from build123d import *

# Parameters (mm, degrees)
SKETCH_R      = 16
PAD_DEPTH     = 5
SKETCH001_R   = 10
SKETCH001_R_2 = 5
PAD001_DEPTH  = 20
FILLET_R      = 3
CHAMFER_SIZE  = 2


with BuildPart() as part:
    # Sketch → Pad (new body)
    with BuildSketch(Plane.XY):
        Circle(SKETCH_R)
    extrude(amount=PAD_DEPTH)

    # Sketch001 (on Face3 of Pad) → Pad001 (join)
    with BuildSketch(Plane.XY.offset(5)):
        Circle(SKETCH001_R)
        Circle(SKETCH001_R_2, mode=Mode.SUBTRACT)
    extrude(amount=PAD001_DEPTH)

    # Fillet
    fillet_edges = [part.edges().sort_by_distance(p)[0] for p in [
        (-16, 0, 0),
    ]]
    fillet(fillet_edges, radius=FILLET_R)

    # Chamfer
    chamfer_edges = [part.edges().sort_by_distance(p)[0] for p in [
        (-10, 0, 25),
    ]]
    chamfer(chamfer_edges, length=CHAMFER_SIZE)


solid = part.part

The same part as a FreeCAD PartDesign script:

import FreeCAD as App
import Part
import Sketcher


def edges_at(feature, points):
    """Names of the edges that pass closest to the given points."""
    edges = feature.Shape.Edges
    near = lambda p: min(range(len(edges)), key=lambda i: edges[i].distToShape(Part.Vertex(*p))[0])
    return sorted({f"Edge{near(p) + 1}" for p in points})

doc = App.newDocument("Part")
body = doc.addObject("PartDesign::Body", "Body")

sketch1 = body.newObject("Sketcher::SketchObject", "Sketch")
sketch1.AttachmentSupport = (doc.getObject("XY_Plane"), [""])
sketch1.MapMode = "FlatFace"
sketch1.addGeometry(Part.Circle(App.Vector(0, 0, 0), App.Vector(0, 0, 1), 16), False)
sketch1.addConstraint([
    Sketcher.Constraint("Coincident", 0, 3, -1, 1),
    Sketcher.Constraint("Diameter", 0, 32.0),
])
pad1 = body.newObject("PartDesign::Pad", "Pad")
pad1.Profile = sketch1
pad1.Length = 5

sketch2 = body.newObject("Sketcher::SketchObject", "Sketch001")
sketch2.AttachmentSupport = (doc.getObject("XY_Plane"), [""])
sketch2.MapMode = "FlatFace"
sketch2.AttachmentOffset = App.Placement(App.Vector(0, 0, 5), App.Rotation())
sketch2.addGeometry([
    Part.Circle(App.Vector(0, 0, 0), App.Vector(0, 0, 1), 10),
    Part.Circle(App.Vector(0, 0, 0), App.Vector(0, 0, 1), 5),
], False)
sketch2.addConstraint([
    Sketcher.Constraint("Coincident", 0, 3, -1, 1),
    Sketcher.Constraint("Coincident", 1, 3, -1, 1),
    Sketcher.Constraint("Diameter", 0, 20.0),
    Sketcher.Constraint("Diameter", 1, 10.0),
])
pad2 = body.newObject("PartDesign::Pad", "Pad001")
pad2.Profile = sketch2
pad2.Length = 20
doc.recompute()

fillet = body.newObject("PartDesign::Fillet", "Fillet")
fillet.Base = (pad2, edges_at(pad2, [(-16, 0, 0)]))
fillet.Radius = 3
doc.recompute()

chamfer = body.newObject("PartDesign::Chamfer", "Chamfer")
chamfer.Base = (fillet, edges_at(fillet, [(-10, 0, 25)]))
chamfer.Size = 2

doc.recompute()
